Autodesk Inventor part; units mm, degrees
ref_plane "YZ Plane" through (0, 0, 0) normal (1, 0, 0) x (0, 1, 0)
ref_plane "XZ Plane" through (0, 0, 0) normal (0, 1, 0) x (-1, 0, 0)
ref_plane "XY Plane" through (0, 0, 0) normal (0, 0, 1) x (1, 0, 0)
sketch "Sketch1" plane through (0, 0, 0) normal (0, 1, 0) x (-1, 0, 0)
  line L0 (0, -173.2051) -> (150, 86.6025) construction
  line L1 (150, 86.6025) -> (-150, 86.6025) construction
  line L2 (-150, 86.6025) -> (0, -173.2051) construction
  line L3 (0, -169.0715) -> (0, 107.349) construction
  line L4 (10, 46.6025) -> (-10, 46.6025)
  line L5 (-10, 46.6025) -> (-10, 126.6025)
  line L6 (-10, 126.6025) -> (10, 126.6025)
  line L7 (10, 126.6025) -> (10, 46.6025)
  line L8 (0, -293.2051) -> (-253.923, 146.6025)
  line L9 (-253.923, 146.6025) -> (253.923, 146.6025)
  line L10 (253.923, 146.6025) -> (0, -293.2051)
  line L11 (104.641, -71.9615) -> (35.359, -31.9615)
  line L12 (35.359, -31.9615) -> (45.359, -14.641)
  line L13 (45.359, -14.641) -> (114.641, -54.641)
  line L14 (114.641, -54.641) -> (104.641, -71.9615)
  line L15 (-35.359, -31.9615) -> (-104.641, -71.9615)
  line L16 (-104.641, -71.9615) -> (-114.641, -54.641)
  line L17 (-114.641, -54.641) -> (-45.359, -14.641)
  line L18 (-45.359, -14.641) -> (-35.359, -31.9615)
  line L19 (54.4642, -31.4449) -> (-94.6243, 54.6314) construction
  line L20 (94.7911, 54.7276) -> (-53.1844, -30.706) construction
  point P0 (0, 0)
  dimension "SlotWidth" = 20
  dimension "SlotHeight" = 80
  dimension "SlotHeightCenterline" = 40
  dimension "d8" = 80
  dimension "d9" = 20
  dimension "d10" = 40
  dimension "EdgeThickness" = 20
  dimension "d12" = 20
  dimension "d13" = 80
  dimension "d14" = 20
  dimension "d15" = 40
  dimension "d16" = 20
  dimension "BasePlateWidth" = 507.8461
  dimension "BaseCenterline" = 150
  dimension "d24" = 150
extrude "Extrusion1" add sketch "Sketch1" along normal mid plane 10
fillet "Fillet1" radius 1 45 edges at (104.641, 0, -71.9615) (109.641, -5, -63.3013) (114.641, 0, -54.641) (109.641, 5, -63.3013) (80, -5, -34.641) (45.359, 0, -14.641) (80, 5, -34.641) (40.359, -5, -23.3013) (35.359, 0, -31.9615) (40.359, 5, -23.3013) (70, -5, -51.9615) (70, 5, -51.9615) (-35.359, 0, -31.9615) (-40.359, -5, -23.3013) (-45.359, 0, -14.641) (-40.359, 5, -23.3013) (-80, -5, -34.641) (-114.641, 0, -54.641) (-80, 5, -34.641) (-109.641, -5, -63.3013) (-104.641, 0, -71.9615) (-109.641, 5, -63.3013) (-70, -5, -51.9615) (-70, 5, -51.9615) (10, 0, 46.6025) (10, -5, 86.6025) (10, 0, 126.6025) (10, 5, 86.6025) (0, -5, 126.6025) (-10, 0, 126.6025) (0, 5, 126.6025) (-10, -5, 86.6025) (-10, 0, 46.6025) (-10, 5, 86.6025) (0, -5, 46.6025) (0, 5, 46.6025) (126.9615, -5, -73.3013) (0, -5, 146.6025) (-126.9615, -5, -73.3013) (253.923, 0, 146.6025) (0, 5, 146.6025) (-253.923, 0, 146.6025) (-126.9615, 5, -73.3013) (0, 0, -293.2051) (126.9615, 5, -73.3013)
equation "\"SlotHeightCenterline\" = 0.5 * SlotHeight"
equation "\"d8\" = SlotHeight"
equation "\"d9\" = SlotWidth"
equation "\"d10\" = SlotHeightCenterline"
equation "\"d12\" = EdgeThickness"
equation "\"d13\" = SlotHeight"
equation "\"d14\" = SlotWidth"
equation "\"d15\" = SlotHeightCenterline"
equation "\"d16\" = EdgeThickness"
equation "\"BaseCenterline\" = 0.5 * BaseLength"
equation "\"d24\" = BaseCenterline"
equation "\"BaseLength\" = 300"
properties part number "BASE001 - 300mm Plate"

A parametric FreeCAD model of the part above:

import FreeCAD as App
import Part
import Sketcher
Q = App.Units.Quantity

doc = App.newDocument("Part")
params = doc.addObject("Spreadsheet::Sheet", "Params")
for row, (alias, value) in enumerate([
    ("sketch1_width", "20 mm"),
    ("sketch1_height", "80 mm"),
    ("sketch1_length", "20 mm"),
    ("sketch1_length2", "80 mm"),
    ("pad1_length", "10 mm"),
    ("fillet_radius", "1 mm"),
], start=1):
    params.set(f"A{row}", alias)
    params.set(f"B{row}", "=" + value)
    params.setAlias(f"B{row}", alias)

body = doc.addObject("PartDesign::Body", "Body")

# Sketch on XZ plane
sketch1 = body.newObject("Sketcher::SketchObject", "Sketch")
sketch1.AttachmentSupport = (doc.getObject("XZ_Plane"), [""])
sketch1.MapMode = "FlatFace"
sketch1.addGeometry([
    Part.LineSegment(App.Vector(254, 147, 0), App.Vector(0, -293, 0)),  # 0
    Part.LineSegment(App.Vector(0, -293, 0), App.Vector(-254, 147, 0)),  # 1
    Part.LineSegment(App.Vector(-254, 147, 0), App.Vector(254, 147, 0)),  # 2
    Part.LineSegment(App.Vector(45, -15, 0), App.Vector(35, -32, 0)),  # 3
    Part.LineSegment(App.Vector(35, -32, 0), App.Vector(105, -72, 0)),  # 4
    Part.LineSegment(App.Vector(105, -72, 0), App.Vector(115, -55, 0)),  # 5
    Part.LineSegment(App.Vector(115, -55, 0), App.Vector(45, -15, 0)),  # 6
    Part.LineSegment(App.Vector(-115, -55, 0), App.Vector(-105, -72, 0)),  # 7
    Part.LineSegment(App.Vector(-105, -72, 0), App.Vector(-35, -32, 0)),  # 8
    Part.LineSegment(App.Vector(-35, -32, 0), App.Vector(-45, -15, 0)),  # 9
    Part.LineSegment(App.Vector(-45, -15, 0), App.Vector(-115, -55, 0)),  # 10
    Part.LineSegment(App.Vector(-10, 127, 0), App.Vector(-10, 47, 0)),  # 11
    Part.LineSegment(App.Vector(-10, 47, 0), App.Vector(10, 47, 0)),  # 12
    Part.LineSegment(App.Vector(10, 47, 0), App.Vector(10, 127, 0)),  # 13
    Part.LineSegment(App.Vector(10, 127, 0), App.Vector(-10, 127, 0)),  # 14
], False)
sketch1.addConstraint([
    Sketcher.Constraint("Coincident", 0, 2, 1, 1),
    Sketcher.Constraint("Coincident", 1, 2, 2, 1),
    Sketcher.Constraint("Coincident", 2, 2, 0, 1),
    Sketcher.Constraint("Coincident", 3, 2, 4, 1),
    Sketcher.Constraint("Coincident", 4, 2, 5, 1),
    Sketcher.Constraint("Coincident", 5, 2, 6, 1),
    Sketcher.Constraint("Coincident", 6, 2, 3, 1),
    Sketcher.Constraint("Coincident", 7, 2, 8, 1),
    Sketcher.Constraint("Coincident", 8, 2, 9, 1),
    Sketcher.Constraint("Coincident", 9, 2, 10, 1),
    Sketcher.Constraint("Coincident", 10, 2, 7, 1),
    Sketcher.Constraint("Coincident", 11, 2, 12, 1),
    Sketcher.Constraint("Coincident", 12, 2, 13, 1),
    Sketcher.Constraint("Coincident", 13, 2, 14, 1),
    Sketcher.Constraint("Coincident", 14, 2, 11, 1),
    Sketcher.Constraint("Horizontal", 2),
    Sketcher.Constraint("Vertical", 11),
    Sketcher.Constraint("Horizontal", 12),
    Sketcher.Constraint("Vertical", 13),
    Sketcher.Constraint("Horizontal", 14),
    Sketcher.Constraint("Symmetric", 4, 2, 7, 2, -2),
    Sketcher.Constraint("Symmetric", 3, 2, 8, 2, -2),
    Sketcher.Constraint("Symmetric", 6, 2, 9, 2, -2),
    Sketcher.Constraint("Symmetric", 5, 2, 10, 2, -2),
    Sketcher.Constraint("PointOnObject", 0, 2, -2),
    Sketcher.Constraint("Parallel", 0, 3),
    Sketcher.Constraint("Perpendicular", 3, 4),
    Sketcher.Constraint("Perpendicular", 4, 5),
    Sketcher.Constraint("Perpendicular", 5, 6),
    Sketcher.Constraint("Parallel", 1, 7),
    Sketcher.Constraint("DistanceX", 12, 1, 12, 2, Q("20 mm")),
    Sketcher.Constraint("DistanceY", 11, 2, 11, 1, Q("80 mm")),
    Sketcher.Constraint("Angle", 6, Q("150 deg")),
    Sketcher.Constraint("Distance", 3, Q("20 mm")),
    Sketcher.Constraint("Distance", 4, Q("80 mm")),
    Sketcher.Constraint("DistanceX", 7, 2, 6, 2, Q("150 mm")),
    Sketcher.Constraint("DistanceX", 2, 1, 2, 2, Q("507.846 mm")),
    Sketcher.Constraint("DistanceX", 11, 2, -1, 1, Q("10 mm")),
    Sketcher.Constraint("DistanceY", 0, 2, -1, 1, Q("293.205 mm")),
    Sketcher.Constraint("DistanceY", 5, 2, -1, 1, Q("54.641 mm")),
    Sketcher.Constraint("DistanceY", 8, 2, 11, 2, Q("78.564 mm")),
])
sketch1.setExpression("Constraints[30]", "Params.sketch1_width")
sketch1.setExpression("Constraints[31]", "Params.sketch1_height")
sketch1.setExpression("Constraints[33]", "Params.sketch1_length")
sketch1.setExpression("Constraints[34]", "Params.sketch1_length2")
pad1 = body.newObject("PartDesign::Pad", "Pad")
pad1.Profile = sketch1
pad1.setExpression("Length", "Params.pad1_length")
pad1.Midplane = True
doc.recompute()

fillet = body.newObject("PartDesign::Fillet", "Fillet")
fillet.Base = (pad1, ["Edge1"])
fillet.UseAllEdges = True
fillet.setExpression("Radius", "Params.fillet_radius")

doc.recompute()
